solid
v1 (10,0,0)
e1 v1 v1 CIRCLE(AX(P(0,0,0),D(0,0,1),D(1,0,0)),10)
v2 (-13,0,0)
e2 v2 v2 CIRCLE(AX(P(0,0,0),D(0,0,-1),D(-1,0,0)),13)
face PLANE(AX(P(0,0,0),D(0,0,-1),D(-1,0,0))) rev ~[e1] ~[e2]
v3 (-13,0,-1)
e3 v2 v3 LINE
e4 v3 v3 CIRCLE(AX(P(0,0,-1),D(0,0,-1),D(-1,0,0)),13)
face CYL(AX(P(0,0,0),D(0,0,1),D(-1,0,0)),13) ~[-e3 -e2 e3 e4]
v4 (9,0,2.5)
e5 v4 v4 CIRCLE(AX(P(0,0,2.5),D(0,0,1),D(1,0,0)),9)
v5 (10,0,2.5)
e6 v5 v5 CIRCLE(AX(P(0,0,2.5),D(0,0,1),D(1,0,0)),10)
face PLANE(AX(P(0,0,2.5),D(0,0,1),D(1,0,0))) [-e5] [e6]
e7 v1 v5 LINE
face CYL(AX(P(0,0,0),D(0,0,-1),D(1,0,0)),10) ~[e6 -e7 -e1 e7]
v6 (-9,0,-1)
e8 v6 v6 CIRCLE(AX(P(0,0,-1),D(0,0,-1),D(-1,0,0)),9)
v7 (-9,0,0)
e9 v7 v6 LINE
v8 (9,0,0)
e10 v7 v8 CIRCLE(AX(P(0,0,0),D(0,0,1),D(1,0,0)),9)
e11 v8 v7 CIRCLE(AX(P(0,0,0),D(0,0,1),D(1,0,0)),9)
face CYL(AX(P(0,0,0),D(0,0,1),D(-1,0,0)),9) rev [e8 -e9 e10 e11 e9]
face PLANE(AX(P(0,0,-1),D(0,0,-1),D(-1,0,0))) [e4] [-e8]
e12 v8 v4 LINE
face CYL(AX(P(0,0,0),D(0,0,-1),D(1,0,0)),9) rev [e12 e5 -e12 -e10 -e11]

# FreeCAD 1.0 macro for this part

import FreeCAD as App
import Part
import Sketcher
from FreeCAD import Vector
Q = App.Units.Quantity

doc = App.newDocument("Part")
body = doc.addObject("PartDesign::Body", "Body")

# Sketch on XY plane
sketch1 = body.newObject("Sketcher::SketchObject", "Sketch")
sketch1.AttachmentSupport = (doc.getObject("XY_Plane"), [""])
sketch1.MapMode = "FlatFace"
sketch1.addGeometry([
    Part.Circle(Vector(0, 0, 0), Vector(0, 0, 1), 10),
    Part.Circle(Vector(0, 0, 0), Vector(0, 0, 1), 9),
], False)
sketch1.addConstraint([
    Sketcher.Constraint("Coincident", 0, 3, -1, 1),
    Sketcher.Constraint("Coincident", 1, 3, -1, 1),
    Sketcher.Constraint("Diameter", 0, Q("20 mm")),
    Sketcher.Constraint("Diameter", 1, Q("18 mm")),
])
pad1 = body.newObject("PartDesign::Pad", "Pad")
pad1.Profile = sketch1
pad1.Length = 2.5

# Sketch on XY plane
sketch2 = body.newObject("Sketcher::SketchObject", "Sketch001")
sketch2.AttachmentSupport = (doc.getObject("XY_Plane"), [""])
sketch2.MapMode = "FlatFace"
sketch2.addGeometry([
    Part.Circle(Vector(0, 0, 0), Vector(0, 0, 1), 13),
    Part.Circle(Vector(0, 0, 0), Vector(0, 0, 1), 9),
], False)
sketch2.addConstraint([
    Sketcher.Constraint("Coincident", 0, 3, -1, 1),
    Sketcher.Constraint("Coincident", 1, 3, -1, 1),
    Sketcher.Constraint("Diameter", 0, Q("26 mm")),
    Sketcher.Constraint("Diameter", 1, Q("18 mm")),
])
pad2 = body.newObject("PartDesign::Pad", "Pad001")
pad2.Profile = sketch2
pad2.Length = 1
pad2.Reversed = True

doc.recompute()
